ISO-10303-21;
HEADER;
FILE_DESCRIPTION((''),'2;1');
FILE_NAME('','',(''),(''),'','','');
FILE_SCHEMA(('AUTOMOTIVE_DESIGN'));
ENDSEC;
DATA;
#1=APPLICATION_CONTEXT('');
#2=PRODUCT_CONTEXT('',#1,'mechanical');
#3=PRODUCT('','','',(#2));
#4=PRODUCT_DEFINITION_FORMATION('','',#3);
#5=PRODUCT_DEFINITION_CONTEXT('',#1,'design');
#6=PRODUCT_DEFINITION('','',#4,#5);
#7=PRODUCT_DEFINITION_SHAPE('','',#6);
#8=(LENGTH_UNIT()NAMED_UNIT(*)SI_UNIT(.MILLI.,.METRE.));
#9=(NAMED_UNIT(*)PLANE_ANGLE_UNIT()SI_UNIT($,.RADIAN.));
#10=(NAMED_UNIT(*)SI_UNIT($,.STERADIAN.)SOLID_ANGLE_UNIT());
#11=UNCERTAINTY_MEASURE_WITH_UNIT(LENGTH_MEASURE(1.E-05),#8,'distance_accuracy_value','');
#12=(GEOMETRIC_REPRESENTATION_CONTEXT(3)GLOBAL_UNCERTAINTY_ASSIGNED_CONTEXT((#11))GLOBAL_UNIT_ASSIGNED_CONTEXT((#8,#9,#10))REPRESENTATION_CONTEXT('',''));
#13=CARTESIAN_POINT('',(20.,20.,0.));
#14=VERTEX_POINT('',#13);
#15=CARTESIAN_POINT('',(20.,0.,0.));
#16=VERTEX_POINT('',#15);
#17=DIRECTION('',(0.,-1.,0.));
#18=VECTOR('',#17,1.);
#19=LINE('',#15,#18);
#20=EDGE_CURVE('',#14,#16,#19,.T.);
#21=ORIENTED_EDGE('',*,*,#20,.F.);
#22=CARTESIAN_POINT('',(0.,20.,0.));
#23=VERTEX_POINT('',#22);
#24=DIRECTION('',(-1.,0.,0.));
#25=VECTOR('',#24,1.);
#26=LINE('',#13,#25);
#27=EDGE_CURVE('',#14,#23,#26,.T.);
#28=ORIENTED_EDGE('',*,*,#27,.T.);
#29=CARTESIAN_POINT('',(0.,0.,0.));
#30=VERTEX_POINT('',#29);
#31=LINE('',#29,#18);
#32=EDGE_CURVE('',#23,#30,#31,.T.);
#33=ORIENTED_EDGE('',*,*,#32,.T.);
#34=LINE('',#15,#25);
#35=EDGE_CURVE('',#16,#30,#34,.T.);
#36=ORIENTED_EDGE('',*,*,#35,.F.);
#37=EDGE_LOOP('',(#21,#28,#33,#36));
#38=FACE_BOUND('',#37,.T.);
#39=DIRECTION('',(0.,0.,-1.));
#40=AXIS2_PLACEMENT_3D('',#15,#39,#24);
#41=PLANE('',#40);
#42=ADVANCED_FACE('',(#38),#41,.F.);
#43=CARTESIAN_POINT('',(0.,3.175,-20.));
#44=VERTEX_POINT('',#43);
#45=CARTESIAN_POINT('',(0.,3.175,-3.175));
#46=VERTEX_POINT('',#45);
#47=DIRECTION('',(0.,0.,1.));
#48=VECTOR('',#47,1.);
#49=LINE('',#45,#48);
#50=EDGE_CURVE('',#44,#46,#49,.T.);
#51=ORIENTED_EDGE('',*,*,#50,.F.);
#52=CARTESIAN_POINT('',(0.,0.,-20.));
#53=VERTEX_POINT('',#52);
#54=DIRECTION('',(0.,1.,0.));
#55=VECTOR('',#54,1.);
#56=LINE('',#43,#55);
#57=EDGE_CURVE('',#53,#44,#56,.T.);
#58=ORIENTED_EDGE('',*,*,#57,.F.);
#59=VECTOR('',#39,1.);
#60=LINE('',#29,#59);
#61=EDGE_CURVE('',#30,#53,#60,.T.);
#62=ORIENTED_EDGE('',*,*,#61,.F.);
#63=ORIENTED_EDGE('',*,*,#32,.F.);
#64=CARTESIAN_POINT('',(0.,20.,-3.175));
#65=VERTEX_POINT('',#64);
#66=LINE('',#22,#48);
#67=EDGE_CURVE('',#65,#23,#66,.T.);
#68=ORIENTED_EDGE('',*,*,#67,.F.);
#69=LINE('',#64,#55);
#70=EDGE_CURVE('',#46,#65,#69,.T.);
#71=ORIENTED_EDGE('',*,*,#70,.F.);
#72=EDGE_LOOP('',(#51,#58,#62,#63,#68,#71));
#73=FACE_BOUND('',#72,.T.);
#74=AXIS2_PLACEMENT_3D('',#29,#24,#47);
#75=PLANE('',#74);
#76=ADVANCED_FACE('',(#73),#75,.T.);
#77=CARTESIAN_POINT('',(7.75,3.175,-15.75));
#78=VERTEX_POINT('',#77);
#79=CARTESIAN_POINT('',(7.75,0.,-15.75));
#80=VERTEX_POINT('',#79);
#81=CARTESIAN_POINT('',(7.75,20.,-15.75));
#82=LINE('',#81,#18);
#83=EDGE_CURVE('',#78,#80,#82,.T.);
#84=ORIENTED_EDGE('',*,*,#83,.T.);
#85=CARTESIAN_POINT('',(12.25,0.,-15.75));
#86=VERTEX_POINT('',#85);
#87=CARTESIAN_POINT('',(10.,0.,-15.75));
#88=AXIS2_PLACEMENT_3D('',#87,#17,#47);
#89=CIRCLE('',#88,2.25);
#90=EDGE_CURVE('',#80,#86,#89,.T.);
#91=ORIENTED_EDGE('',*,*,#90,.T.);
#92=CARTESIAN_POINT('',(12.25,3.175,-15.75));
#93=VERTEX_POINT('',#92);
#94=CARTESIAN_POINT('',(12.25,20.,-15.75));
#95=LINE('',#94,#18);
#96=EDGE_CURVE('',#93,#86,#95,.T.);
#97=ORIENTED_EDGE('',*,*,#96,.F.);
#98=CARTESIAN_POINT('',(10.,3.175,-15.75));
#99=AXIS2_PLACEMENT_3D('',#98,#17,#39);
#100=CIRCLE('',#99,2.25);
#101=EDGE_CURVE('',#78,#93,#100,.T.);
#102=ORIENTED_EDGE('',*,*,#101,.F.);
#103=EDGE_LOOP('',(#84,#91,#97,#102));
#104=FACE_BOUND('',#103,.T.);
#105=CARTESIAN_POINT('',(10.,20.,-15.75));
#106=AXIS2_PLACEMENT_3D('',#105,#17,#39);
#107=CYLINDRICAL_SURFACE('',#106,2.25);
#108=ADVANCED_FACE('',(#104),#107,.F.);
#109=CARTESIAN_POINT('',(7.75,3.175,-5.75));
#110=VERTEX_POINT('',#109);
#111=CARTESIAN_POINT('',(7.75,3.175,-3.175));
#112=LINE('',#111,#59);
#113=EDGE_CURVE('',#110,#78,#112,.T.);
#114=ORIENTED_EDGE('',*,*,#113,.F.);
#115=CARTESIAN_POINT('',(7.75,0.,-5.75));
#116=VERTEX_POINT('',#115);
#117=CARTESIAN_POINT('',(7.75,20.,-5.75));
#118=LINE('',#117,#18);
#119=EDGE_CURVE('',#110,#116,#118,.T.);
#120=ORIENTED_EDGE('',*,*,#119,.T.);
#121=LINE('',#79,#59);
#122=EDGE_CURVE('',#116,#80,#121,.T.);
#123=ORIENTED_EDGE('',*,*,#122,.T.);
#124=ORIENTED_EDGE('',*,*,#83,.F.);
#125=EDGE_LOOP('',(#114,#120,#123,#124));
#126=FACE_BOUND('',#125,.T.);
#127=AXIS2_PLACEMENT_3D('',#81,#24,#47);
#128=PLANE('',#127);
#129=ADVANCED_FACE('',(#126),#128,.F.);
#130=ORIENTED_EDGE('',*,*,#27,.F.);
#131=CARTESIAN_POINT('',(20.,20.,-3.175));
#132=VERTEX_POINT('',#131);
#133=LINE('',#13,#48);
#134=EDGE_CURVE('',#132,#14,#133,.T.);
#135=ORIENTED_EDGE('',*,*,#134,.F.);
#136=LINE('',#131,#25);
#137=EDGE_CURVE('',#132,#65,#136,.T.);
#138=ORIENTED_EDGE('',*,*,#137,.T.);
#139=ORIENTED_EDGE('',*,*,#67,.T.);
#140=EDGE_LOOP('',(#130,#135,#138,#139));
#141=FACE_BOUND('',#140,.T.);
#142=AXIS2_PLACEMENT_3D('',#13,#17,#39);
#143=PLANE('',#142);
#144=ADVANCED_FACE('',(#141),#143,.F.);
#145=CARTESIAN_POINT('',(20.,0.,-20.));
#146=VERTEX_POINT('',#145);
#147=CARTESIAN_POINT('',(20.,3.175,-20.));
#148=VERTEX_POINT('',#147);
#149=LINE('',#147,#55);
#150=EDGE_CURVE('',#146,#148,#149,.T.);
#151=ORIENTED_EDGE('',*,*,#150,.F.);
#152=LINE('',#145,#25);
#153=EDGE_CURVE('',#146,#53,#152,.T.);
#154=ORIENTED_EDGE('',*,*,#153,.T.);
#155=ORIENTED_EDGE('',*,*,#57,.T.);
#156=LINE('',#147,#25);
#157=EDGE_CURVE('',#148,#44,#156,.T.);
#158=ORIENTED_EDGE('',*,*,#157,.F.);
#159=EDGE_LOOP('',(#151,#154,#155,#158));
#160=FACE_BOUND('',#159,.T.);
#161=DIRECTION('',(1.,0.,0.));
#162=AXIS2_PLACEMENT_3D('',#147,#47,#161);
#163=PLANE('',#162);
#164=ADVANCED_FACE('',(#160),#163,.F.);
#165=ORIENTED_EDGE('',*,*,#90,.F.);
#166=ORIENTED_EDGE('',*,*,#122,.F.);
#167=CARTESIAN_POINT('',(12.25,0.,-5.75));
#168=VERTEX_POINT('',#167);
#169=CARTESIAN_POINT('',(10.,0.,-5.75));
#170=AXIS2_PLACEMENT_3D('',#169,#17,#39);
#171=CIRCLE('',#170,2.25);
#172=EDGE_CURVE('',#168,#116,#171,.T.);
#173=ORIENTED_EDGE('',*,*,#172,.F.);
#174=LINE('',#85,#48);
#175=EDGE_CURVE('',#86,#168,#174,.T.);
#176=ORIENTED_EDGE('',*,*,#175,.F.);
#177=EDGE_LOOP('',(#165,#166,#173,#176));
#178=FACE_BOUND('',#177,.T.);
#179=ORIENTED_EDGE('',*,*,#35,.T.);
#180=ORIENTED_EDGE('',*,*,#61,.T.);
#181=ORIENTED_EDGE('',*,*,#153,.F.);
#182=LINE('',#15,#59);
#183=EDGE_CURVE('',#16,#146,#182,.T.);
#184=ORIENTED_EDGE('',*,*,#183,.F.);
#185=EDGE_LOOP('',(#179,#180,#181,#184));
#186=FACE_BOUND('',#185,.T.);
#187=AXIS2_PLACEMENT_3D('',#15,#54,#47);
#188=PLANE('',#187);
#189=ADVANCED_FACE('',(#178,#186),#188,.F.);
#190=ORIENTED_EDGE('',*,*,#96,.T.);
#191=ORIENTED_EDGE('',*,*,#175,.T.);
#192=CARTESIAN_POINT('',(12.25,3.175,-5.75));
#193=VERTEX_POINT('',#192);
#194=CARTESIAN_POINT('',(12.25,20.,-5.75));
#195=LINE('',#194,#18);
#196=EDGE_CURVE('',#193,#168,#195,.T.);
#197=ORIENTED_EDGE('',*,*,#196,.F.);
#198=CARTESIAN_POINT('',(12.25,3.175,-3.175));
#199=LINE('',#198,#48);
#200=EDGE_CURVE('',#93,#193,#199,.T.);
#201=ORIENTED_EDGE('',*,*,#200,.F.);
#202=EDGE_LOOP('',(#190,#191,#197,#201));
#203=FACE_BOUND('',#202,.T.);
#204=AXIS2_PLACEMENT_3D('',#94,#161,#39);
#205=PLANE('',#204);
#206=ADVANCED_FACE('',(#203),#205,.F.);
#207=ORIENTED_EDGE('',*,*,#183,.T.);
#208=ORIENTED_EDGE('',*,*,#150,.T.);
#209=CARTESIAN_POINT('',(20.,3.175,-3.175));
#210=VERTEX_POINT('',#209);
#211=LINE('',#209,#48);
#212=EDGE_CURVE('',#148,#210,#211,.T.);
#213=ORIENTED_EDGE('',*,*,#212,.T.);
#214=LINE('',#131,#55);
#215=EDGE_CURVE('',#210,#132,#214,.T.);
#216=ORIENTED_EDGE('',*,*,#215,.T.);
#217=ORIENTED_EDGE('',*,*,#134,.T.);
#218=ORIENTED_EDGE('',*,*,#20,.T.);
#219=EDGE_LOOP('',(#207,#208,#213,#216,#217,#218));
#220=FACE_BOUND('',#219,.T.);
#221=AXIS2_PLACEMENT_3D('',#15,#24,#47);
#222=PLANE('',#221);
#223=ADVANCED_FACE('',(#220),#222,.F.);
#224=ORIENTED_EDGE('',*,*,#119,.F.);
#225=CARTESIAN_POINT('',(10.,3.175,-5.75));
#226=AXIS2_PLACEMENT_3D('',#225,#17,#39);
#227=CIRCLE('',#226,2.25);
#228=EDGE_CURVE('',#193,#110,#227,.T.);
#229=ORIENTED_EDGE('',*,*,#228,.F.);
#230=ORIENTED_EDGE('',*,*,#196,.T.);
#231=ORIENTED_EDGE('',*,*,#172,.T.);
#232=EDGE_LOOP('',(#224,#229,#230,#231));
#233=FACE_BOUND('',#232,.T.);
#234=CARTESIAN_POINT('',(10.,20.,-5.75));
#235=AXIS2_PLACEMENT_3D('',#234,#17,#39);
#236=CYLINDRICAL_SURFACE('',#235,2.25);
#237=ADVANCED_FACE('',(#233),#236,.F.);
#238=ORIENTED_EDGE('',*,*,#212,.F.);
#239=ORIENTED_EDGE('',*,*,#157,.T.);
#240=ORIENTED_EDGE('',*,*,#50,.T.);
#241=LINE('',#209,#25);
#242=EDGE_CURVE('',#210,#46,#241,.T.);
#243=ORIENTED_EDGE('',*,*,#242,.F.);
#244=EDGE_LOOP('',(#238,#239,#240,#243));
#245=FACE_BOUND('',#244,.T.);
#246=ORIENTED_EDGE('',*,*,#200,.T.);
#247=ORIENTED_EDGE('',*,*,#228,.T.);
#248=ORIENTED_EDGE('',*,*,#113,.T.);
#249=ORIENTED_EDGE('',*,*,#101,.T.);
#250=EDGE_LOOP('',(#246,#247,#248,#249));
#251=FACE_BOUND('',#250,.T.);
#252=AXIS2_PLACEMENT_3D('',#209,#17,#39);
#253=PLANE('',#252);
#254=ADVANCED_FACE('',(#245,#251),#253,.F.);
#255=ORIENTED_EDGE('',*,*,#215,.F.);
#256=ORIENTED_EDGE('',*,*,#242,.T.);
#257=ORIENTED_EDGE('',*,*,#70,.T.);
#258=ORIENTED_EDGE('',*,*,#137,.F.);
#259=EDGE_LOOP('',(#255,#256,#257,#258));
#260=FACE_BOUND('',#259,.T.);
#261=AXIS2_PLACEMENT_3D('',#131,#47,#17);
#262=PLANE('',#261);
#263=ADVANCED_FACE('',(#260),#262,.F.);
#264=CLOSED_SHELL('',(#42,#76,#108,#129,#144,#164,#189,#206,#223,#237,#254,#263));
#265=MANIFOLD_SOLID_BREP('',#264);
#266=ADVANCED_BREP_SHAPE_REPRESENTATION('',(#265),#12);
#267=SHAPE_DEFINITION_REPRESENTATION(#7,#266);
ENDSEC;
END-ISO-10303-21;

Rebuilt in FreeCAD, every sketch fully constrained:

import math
import FreeCAD as App
import Part
import Sketcher

V = App.Vector


def add_polygon(sketch, points):
    """Adds a closed chain of lines whose ends are joined by coincident constraints."""
    first, n = sketch.GeometryCount, len(points)
    for a, b in zip(points, points[1:] + points[:1]):
        sketch.addGeometry(Part.LineSegment(App.Vector(*a, 0), App.Vector(*b, 0)), False)
    for i in range(n):
        sketch.addConstraint(Sketcher.Constraint("Coincident", first + i, 2, first + (i + 1) % n, 1))

doc = App.newDocument("Part")
body = doc.addObject("PartDesign::Body", "Body")

# Sketch on YZ plane
sketch1 = body.newObject("Sketcher::SketchObject", "Sketch")
sketch1.AttachmentSupport = (doc.getObject("YZ_Plane"), [""])
sketch1.MapMode = "FlatFace"
add_polygon(sketch1, [(20, 0), (0, 0), (0, -20), (3.175, -20), (3.175, -3.175), (20, -3.175)])  # lines 0-5
sketch1.addConstraint([
    Sketcher.Constraint("Horizontal", 0),
    Sketcher.Constraint("Vertical", 1),
    Sketcher.Constraint("Horizontal", 2),
    Sketcher.Constraint("Vertical", 3),
    Sketcher.Constraint("Horizontal", 4),
    Sketcher.Constraint("Vertical", 5),
    Sketcher.Constraint("Coincident", 0, 2, -1, 1),
    Sketcher.Constraint("Equal", 0, 1),
    Sketcher.Constraint("Equal", 4, 3),
    Sketcher.Constraint("DistanceX", 0, 2, 0, 1, 20.0),
    Sketcher.Constraint("DistanceX", 2, 1, 2, 2, 3.175),
])
pad1 = body.newObject("PartDesign::Pad", "Pad")
pad1.Profile = sketch1
pad1.Length = 20

# Sketch on XZ plane
sketch2 = body.newObject("Sketcher::SketchObject", "Sketch001")
sketch2.AttachmentSupport = (doc.getObject("XZ_Plane"), [""])
sketch2.MapMode = "FlatFace"
sketch2.addGeometry([
    Part.LineSegment(V(7.75, -5.75, 0), V(7.75, -15.75, 0)),
    Part.ArcOfCircle(Part.Circle(V(10, -15.75, 0), V(0, 0, 1), 2.25), math.radians(180), math.radians(360)),
    Part.LineSegment(V(12.25, -15.75, 0), V(12.25, -5.75, 0)),
    Part.ArcOfCircle(Part.Circle(V(10, -5.75, 0), V(0, 0, 1), 2.25), math.radians(0), math.radians(180)),
], False)
sketch2.addConstraint([
    Sketcher.Constraint("Tangent", 0, 2, 1, 1),
    Sketcher.Constraint("Tangent", 1, 2, 2, 1),
    Sketcher.Constraint("Tangent", 2, 2, 3, 1),
    Sketcher.Constraint("Tangent", 3, 2, 0, 1),
    Sketcher.Constraint("Vertical", 0),
    Sketcher.Constraint("Vertical", 2),
    Sketcher.Constraint("DistanceY", 0, 2, 0, 1, 10.0),
    Sketcher.Constraint("Radius", 1, 2.25),
    Sketcher.Constraint("DistanceX", -1, 1, 1, 3, 10.0),
    Sketcher.Constraint("DistanceY", 1, 3, -1, 1, 15.75),
])
pocket1 = body.newObject("PartDesign::Pocket", "Pocket")
pocket1.Profile = sketch2
pocket1.Type = "ThroughAll"

doc.recompute()
